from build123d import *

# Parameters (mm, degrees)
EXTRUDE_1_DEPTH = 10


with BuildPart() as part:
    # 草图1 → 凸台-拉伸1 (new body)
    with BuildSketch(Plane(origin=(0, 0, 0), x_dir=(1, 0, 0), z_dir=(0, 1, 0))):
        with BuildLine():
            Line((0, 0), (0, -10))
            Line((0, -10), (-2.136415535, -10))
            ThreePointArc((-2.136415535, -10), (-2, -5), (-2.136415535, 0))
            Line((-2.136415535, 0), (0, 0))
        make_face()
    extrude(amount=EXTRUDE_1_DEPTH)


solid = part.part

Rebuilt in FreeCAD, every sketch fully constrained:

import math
import FreeCAD as App
import Part
import Sketcher
from FreeCAD import Vector

doc = App.newDocument("Part")
body = doc.addObject("PartDesign::Body", "Body")

# Sketch on XZ plane
sketch1 = doc.addObject("Sketcher::SketchObject", "Sketch")
body.addObject(sketch1)
sketch1.AttachmentSupport = (doc.XZ_Plane, [""])
sketch1.MapMode = "FlatFace"
sketch1.addGeometry([
    Part.LineSegment(Vector(0, 10, 0), Vector(0, 0, 0)),
    Part.LineSegment(Vector(0, 0, 0), Vector(-2.1, 0, 0)),
    Part.ArcOfCircle(Part.Circle(Vector(-93.7, 5, 0), Vector(0, 0, 1), 91.7), math.radians(-3.13), math.radians(3.13)),
    Part.LineSegment(Vector(-2.1, 10, 0), Vector(0, 10, 0)),
], False)
sketch1.addConstraint([
    Sketcher.Constraint("Coincident", 0, 2, 1, 1),
    Sketcher.Constraint("Coincident", 1, 2, 2, 1),
    Sketcher.Constraint("Coincident", 2, 2, 3, 1),
    Sketcher.Constraint("Coincident", 3, 2, 0, 1),
    Sketcher.Constraint("Vertical", 0),
    Sketcher.Constraint("Horizontal", 1),
    Sketcher.Constraint("Horizontal", 3),
    Sketcher.Constraint("Coincident", 0, 2, -1, 1),
    Sketcher.Constraint("Vertical", 1, 2, 2, 2),
    Sketcher.Constraint("Radius", 2, 91.7),
    Sketcher.Constraint("DistanceY", 0, 2, 0, 1, 10.0),
    Sketcher.Constraint("DistanceX", 2, 3, -1, 1, 93.7),
])
pad1 = doc.addObject("PartDesign::Pad", "Pad")
body.addObject(pad1)
pad1.Profile = sketch1
pad1.Length = 10
pad1.Reversed = True

doc.recompute()
